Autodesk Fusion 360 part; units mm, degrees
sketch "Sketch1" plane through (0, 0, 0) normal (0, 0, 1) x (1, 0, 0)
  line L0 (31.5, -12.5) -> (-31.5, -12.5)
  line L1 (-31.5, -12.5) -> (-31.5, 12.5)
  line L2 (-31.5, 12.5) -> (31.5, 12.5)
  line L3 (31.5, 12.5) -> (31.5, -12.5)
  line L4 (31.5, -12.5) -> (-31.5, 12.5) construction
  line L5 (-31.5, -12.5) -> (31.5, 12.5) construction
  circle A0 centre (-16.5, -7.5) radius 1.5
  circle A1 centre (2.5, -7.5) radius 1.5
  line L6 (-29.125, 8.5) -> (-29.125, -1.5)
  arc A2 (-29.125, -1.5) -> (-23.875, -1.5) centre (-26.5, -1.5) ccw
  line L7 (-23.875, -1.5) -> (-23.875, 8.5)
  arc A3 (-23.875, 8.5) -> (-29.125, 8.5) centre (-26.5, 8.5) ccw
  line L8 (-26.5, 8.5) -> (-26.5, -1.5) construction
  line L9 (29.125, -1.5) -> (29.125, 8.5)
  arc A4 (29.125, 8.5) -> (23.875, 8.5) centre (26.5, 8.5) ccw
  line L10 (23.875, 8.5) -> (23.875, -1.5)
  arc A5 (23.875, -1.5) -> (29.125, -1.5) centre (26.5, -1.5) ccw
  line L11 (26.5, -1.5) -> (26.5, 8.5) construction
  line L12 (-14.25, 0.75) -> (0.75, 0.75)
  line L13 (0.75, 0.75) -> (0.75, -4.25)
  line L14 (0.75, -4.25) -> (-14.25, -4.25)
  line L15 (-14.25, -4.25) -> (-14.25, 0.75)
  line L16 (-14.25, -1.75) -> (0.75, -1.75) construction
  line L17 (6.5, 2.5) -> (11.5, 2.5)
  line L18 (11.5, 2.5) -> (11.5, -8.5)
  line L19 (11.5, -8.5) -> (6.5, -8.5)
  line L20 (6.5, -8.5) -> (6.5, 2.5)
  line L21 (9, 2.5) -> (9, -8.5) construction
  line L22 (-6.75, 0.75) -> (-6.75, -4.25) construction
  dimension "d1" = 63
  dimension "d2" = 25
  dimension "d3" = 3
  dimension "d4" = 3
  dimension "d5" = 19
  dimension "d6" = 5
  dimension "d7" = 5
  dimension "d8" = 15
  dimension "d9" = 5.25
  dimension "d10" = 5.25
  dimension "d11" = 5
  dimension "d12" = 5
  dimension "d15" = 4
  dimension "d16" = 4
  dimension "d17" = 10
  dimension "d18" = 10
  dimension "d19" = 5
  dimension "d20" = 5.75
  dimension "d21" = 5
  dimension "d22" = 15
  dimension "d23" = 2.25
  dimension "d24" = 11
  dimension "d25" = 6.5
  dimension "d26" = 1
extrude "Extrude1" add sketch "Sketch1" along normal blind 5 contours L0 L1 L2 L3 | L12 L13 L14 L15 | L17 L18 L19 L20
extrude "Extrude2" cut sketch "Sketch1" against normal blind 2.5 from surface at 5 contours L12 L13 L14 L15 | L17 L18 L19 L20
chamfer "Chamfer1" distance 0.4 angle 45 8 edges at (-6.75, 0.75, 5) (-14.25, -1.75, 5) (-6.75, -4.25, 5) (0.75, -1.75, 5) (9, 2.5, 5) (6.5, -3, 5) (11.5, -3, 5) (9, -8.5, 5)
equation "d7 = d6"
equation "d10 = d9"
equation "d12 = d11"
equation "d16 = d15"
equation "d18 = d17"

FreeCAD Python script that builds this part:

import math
import FreeCAD as App
import Part
import Sketcher

V = App.Vector


def edges_at(feature, points):
    """Names of the edges that pass closest to the given points."""
    edges = feature.Shape.Edges
    near = lambda p: min(range(len(edges)), key=lambda i: edges[i].distToShape(Part.Vertex(*p))[0])
    return sorted({f"Edge{near(p) + 1}" for p in points})


def add_polygon(sketch, points):
    """Adds a closed chain of lines whose ends are joined by coincident constraints."""
    first, n = sketch.GeometryCount, len(points)
    for a, b in zip(points, points[1:] + points[:1]):
        sketch.addGeometry(Part.LineSegment(App.Vector(*a, 0), App.Vector(*b, 0)), False)
    for i in range(n):
        sketch.addConstraint(Sketcher.Constraint("Coincident", first + i, 2, first + (i + 1) % n, 1))

doc = App.newDocument("Part")
body = doc.addObject("PartDesign::Body", "Body")

# Sketch on XY plane
sketch1 = doc.addObject("Sketcher::SketchObject", "Sketch")
body.addObject(sketch1)
sketch1.AttachmentSupport = (doc.XY_Plane, [""])
sketch1.MapMode = "FlatFace"
add_polygon(sketch1, [(-31.5, -12.5), (31.5, -12.5), (31.5, 12.5), (-31.5, 12.5)])  # lines 0-3
sketch1.addGeometry(Part.Circle(V(-16.5, -7.5, 0), V(0, 0, 1), 1.5), False)  # 4
sketch1.addGeometry(Part.Circle(V(2.5, -7.5, 0), V(0, 0, 1), 1.5), False)  # 5
sketch1.addGeometry(Part.LineSegment(V(-29.125, -1.5, 0), V(-29.125, 8.5, 0)), False)  # 6
sketch1.addGeometry(Part.ArcOfCircle(Part.Circle(V(-26.5, 8.5, 0), V(0, 0, 1), 2.625), math.radians(0), math.radians(180)), False)  # 7
sketch1.addGeometry(Part.LineSegment(V(-23.875, 8.5, 0), V(-23.875, -1.5, 0)), False)  # 8
sketch1.addGeometry(Part.ArcOfCircle(Part.Circle(V(-26.5, -1.5, 0), V(0, 0, 1), 2.625), math.radians(180), math.radians(360)), False)  # 9
sketch1.addGeometry(Part.LineSegment(V(29.125, 8.5, 0), V(29.125, -1.5, 0)), False)  # 10
sketch1.addGeometry(Part.ArcOfCircle(Part.Circle(V(26.5, -1.5, 0), V(0, 0, 1), 2.625), math.radians(180), math.radians(360)), False)  # 11
sketch1.addGeometry(Part.LineSegment(V(23.875, -1.5, 0), V(23.875, 8.5, 0)), False)  # 12
sketch1.addGeometry(Part.ArcOfCircle(Part.Circle(V(26.5, 8.5, 0), V(0, 0, 1), 2.625), math.radians(0), math.radians(180)), False)  # 13
sketch1.addConstraint([
    Sketcher.Constraint("Tangent", 6, 2, 7, 2),
    Sketcher.Constraint("Tangent", 7, 1, 8, 1),
    Sketcher.Constraint("Tangent", 8, 2, 9, 2),
    Sketcher.Constraint("Tangent", 9, 1, 6, 1),
    Sketcher.Constraint("Tangent", 10, 2, 11, 2),
    Sketcher.Constraint("Tangent", 11, 1, 12, 1),
    Sketcher.Constraint("Tangent", 12, 2, 13, 2),
    Sketcher.Constraint("Tangent", 13, 1, 10, 1),
    Sketcher.Constraint("Horizontal", 0),
    Sketcher.Constraint("Vertical", 1),
    Sketcher.Constraint("Horizontal", 2),
    Sketcher.Constraint("Vertical", 3),
    Sketcher.Constraint("Vertical", 6),
    Sketcher.Constraint("Vertical", 8),
    Sketcher.Constraint("Vertical", 10),
    Sketcher.Constraint("Vertical", 12),
    Sketcher.Constraint("Equal", 4, 5),
    Sketcher.Constraint("Equal", 9, 11),
    Sketcher.Constraint("Symmetric", 0, 2, 2, 2, -1, 1),
    Sketcher.Constraint("Symmetric", 9, 3, 11, 3, -2),
    Sketcher.Constraint("Horizontal", 4, 3, 5, 3),
    Sketcher.Constraint("Horizontal", 7, 3, 13, 3),
    Sketcher.Constraint("Diameter", 4, 3.0),
    Sketcher.Constraint("DistanceX", 0, 1, 0, 2, 63.0),
    Sketcher.Constraint("DistanceY", 1, 1, 1, 2, 25.0),
    Sketcher.Constraint("DistanceY", 6, 1, 6, 2, 10.0),
    Sketcher.Constraint("Radius", 7, 2.625),
    Sketcher.Constraint("DistanceX", 4, 3, 5, 3, 19.0),
    Sketcher.Constraint("DistanceX", 7, 3, 4, 3, 10.0),
    Sketcher.Constraint("DistanceX", 11, 3, 0, 2, 5.0),
    Sketcher.Constraint("DistanceY", 0, 2, 11, 3, 11.0),
    Sketcher.Constraint("DistanceY", 0, 2, 5, 3, 5.0),
])
pad1 = doc.addObject("PartDesign::Pad", "Pad")
body.addObject(pad1)
pad1.Profile = sketch1
pad1.Length = 5

# Sketch on XY plane
sketch2 = doc.addObject("Sketcher::SketchObject", "Sketch001")
body.addObject(sketch2)
sketch2.AttachmentSupport = (doc.XY_Plane, [""])
sketch2.MapMode = "FlatFace"
sketch2.AttachmentOffset = App.Placement(V(0, 0, 5), App.Rotation())
add_polygon(sketch2, [(0.75, 0.75), (-14.25, 0.75), (-14.25, -4.25), (0.75, -4.25)])  # lines 0-3
add_polygon(sketch2, [(11.5, 2.5), (6.5, 2.5), (6.5, -8.5), (11.5, -8.5)])  # lines 4-7
sketch2.addConstraint([
    Sketcher.Constraint("Horizontal", 0),
    Sketcher.Constraint("Vertical", 1),
    Sketcher.Constraint("Horizontal", 2),
    Sketcher.Constraint("Vertical", 3),
    Sketcher.Constraint("Horizontal", 4),
    Sketcher.Constraint("Vertical", 5),
    Sketcher.Constraint("Horizontal", 6),
    Sketcher.Constraint("Vertical", 7),
    Sketcher.Constraint("Equal", 6, 1),
    Sketcher.Constraint("DistanceX", 0, 2, 0, 1, 15.0),
    Sketcher.Constraint("DistanceX", 4, 2, 4, 1, 5.0),
    Sketcher.Constraint("DistanceY", 5, 2, 5, 1, 11.0),
    Sketcher.Constraint("DistanceX", -1, 1, 4, 2, 6.5),
    Sketcher.Constraint("DistanceX", 3, 2, 4, 2, 5.75),
    Sketcher.Constraint("DistanceY", -1, 1, 4, 2, 2.5),
    Sketcher.Constraint("DistanceY", -1, 1, 0, 2, 0.75),
])
pocket1 = doc.addObject("PartDesign::Pocket", "Pocket")
body.addObject(pocket1)
pocket1.Profile = sketch2
pocket1.Length = 2.5
doc.recompute()

chamfer = doc.addObject("PartDesign::Chamfer", "Chamfer")
body.addObject(chamfer)
chamfer.Base = (pocket1, edges_at(pocket1, [
    (-6.75, 0.75, 5),
    (-14.25, -1.75, 5),
    (-6.75, -4.25, 5),
    (0.75, -1.75, 5),
    (9, 2.5, 5),
    (6.5, -3, 5),
    (11.5, -3, 5),
    (9, -8.5, 5),
]))
chamfer.Size = 0.4

doc.recompute()
